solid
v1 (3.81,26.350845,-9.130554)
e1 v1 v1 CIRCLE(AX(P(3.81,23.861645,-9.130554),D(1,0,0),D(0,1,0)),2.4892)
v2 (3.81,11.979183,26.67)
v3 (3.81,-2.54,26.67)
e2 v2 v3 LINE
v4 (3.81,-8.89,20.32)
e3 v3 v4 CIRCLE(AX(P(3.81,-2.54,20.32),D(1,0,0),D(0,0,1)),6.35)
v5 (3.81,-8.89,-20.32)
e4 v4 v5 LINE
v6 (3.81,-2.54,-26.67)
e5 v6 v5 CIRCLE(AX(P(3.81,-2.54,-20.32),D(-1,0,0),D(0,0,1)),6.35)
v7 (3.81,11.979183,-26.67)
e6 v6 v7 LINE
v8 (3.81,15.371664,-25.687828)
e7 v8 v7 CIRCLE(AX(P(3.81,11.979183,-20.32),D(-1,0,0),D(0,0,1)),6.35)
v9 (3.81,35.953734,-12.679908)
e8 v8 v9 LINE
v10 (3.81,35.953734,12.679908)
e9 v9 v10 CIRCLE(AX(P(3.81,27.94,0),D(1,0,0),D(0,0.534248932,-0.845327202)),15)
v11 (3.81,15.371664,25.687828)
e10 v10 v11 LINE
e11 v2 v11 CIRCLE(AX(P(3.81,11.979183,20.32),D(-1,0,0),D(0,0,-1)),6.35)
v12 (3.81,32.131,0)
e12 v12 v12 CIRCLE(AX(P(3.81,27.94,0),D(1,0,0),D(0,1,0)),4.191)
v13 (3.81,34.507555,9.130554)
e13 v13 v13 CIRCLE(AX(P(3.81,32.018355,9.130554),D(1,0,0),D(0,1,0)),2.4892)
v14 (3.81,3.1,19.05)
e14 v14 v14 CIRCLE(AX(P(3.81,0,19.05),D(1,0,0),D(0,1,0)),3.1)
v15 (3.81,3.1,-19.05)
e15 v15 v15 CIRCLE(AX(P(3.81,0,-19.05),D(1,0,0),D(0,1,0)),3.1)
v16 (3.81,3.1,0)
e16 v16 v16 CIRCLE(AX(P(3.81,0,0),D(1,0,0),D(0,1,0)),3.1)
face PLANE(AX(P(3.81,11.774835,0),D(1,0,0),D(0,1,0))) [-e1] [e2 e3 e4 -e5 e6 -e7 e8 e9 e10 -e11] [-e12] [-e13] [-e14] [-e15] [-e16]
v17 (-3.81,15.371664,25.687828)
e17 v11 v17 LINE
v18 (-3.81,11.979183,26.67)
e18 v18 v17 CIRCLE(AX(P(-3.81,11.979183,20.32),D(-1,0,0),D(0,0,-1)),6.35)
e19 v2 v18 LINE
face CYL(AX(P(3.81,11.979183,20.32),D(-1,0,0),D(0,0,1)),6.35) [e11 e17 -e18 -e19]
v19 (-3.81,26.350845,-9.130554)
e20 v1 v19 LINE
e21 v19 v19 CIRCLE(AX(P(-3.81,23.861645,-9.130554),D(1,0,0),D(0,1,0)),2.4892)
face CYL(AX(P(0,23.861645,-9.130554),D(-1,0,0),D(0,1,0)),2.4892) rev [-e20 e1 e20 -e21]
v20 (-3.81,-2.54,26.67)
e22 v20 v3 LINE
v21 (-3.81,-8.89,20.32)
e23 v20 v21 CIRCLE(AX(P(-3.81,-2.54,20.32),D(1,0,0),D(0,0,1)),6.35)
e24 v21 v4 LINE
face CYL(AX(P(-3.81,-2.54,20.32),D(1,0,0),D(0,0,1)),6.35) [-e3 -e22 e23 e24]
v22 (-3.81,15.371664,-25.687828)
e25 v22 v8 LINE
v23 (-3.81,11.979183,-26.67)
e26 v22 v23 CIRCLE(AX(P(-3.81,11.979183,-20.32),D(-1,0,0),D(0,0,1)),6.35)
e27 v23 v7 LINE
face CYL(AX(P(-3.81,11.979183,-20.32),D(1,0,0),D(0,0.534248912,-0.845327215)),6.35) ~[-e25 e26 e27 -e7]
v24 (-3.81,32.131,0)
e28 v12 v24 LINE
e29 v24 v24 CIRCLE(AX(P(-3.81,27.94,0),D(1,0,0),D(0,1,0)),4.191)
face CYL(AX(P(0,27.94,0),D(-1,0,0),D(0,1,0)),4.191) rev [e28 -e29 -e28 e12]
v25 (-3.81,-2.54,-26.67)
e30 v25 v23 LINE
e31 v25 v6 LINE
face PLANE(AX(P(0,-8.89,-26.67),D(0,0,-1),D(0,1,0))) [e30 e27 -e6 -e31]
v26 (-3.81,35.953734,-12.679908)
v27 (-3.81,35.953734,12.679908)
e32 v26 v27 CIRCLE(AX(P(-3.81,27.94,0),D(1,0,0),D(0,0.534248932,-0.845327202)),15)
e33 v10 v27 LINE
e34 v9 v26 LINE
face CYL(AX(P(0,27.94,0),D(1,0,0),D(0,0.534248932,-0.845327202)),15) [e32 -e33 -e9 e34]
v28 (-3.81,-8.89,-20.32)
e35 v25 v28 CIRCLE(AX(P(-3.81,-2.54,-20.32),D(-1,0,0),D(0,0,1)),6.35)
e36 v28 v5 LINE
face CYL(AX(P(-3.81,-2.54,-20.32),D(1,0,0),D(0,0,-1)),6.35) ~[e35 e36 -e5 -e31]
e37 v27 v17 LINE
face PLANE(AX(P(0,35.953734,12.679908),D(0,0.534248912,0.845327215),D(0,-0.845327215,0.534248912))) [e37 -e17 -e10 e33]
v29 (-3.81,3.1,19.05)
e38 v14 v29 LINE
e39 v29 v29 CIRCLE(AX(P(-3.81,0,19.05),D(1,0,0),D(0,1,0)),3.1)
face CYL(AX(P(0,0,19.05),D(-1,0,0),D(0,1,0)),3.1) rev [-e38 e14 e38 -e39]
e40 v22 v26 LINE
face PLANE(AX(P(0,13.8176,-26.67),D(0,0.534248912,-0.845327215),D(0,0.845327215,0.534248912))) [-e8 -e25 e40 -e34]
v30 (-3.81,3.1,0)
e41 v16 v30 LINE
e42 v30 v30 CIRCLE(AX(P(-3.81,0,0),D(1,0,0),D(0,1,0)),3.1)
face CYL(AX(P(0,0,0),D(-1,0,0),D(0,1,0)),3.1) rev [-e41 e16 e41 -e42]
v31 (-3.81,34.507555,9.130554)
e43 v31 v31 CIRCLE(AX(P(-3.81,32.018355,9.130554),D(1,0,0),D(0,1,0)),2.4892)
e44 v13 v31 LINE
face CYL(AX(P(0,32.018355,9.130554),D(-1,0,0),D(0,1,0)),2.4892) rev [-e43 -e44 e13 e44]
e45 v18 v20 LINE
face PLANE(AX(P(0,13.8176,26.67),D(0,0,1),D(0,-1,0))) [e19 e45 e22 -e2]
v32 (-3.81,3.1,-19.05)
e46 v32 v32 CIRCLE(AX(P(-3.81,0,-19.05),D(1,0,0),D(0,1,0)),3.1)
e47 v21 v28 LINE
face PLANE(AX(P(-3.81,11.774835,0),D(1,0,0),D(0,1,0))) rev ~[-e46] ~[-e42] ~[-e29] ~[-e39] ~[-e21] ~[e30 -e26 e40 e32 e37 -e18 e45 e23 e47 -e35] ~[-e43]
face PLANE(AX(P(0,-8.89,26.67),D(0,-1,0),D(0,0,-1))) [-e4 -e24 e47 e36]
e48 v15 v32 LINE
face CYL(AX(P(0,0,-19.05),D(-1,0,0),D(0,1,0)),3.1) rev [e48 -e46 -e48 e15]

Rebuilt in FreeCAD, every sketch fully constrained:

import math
import FreeCAD as App
import Part
import Sketcher
Q = App.Units.Quantity


def edges_at(feature, points):
    """Names of the edges that pass closest to the given points."""
    edges = feature.Shape.Edges
    near = lambda p: min(range(len(edges)), key=lambda i: edges[i].distToShape(Part.Vertex(*p))[0])
    return sorted({f"Edge{near(p) + 1}" for p in points})

doc = App.newDocument("Part")
body = doc.addObject("PartDesign::Body", "Body")

# Sketch on YZ plane
sketch1 = body.newObject("Sketcher::SketchObject", "Sketch")
sketch1.AttachmentSupport = (doc.getObject("YZ_Plane"), [""])
sketch1.MapMode = "FlatFace"
sketch1.addGeometry(Part.LineSegment(App.Vector(13.8, 26.7, 0), App.Vector(-8.9, 26.7, 0)), False)
sketch1.addGeometry(Part.LineSegment(App.Vector(-8.9, 26.7, 0), App.Vector(-8.9, -26.7, 0)), False)
sketch1.addGeometry(Part.LineSegment(App.Vector(-8.9, -26.7, 0), App.Vector(13.8, -26.7, 0)), False)
sketch1.addGeometry(Part.LineSegment(App.Vector(13.8, -26.7, 0), App.Vector(36, -12.7, 0)), False)
sketch1.addGeometry(Part.ArcOfCircle(Part.Circle(App.Vector(27.9, 0, 0), App.Vector(0, 0, 1), 15), math.radians(-58), math.radians(58)), False)
sketch1.addGeometry(Part.LineSegment(App.Vector(36, 12.7, 0), App.Vector(13.8, 26.7, 0)), False)
sketch1.addGeometry(Part.Circle(App.Vector(0, -19.1, 0), App.Vector(0, 0, 1), 3.1), False)
sketch1.addGeometry(Part.Circle(App.Vector(23.9, -9.1, 0), App.Vector(0, 0, 1), 2.5), False)
sketch1.addGeometry(Part.Circle(App.Vector(0, 0, 0), App.Vector(0, 0, 1), 3.1), False)
sketch1.addGeometry(Part.Circle(App.Vector(0, 19.1, 0), App.Vector(0, 0, 1), 3.1), False)
sketch1.addGeometry(Part.Circle(App.Vector(27.9, 0, 0), App.Vector(0, 0, 1), 4.2), False)
sketch1.addGeometry(Part.Circle(App.Vector(32, 9.1, 0), App.Vector(0, 0, 1), 2.5), False)
sketch1.addConstraint(Sketcher.Constraint("Coincident", 0, 2, 1, 1))
sketch1.addConstraint(Sketcher.Constraint("Coincident", 1, 2, 2, 1))
sketch1.addConstraint(Sketcher.Constraint("Coincident", 2, 2, 3, 1))
sketch1.addConstraint(Sketcher.Constraint("Tangent", 3, 2, 4, 1))
sketch1.addConstraint(Sketcher.Constraint("Tangent", 4, 2, 5, 1))
sketch1.addConstraint(Sketcher.Constraint("Coincident", 5, 2, 0, 1))
sketch1.addConstraint(Sketcher.Constraint("Horizontal", 0))
sketch1.addConstraint(Sketcher.Constraint("Vertical", 1))
sketch1.addConstraint(Sketcher.Constraint("Horizontal", 2))
sketch1.addConstraint(Sketcher.Constraint("Coincident", 8, 3, -1, 1))
sketch1.addConstraint(Sketcher.Constraint("Coincident", 10, 3, 4, 3))
sketch1.addConstraint(Sketcher.Constraint("Equal", 6, 8))
sketch1.addConstraint(Sketcher.Constraint("Equal", 8, 9))
sketch1.addConstraint(Sketcher.Constraint("Equal", 7, 11))
sketch1.addConstraint(Sketcher.Constraint("Symmetric", 6, 3, 9, 3, -1, 1))
sketch1.addConstraint(Sketcher.Constraint("Symmetric", 3, 2, 4, 2, -1))
sketch1.addConstraint(Sketcher.Constraint("PointOnObject", 6, 3, -2))
sketch1.addConstraint(Sketcher.Constraint("Vertical", 2, 2, 5, 2))
sketch1.addConstraint(Sketcher.Constraint("Diameter", 10, Q("0.33 in")))
sketch1.addConstraint(Sketcher.Constraint("Diameter", 7, Q("0.196 in")))
sketch1.addConstraint(Sketcher.Constraint("DistanceY", 1, 2, 1, 1, Q("2.1 in")))
sketch1.addConstraint(Sketcher.Constraint("DistanceX", -1, 1, 4, 3, Q("1.1 in")))
sketch1.addConstraint(Sketcher.Constraint("DistanceY", 6, 3, 9, 3, Q("1.5 in")))
sketch1.addConstraint(Sketcher.Constraint("Diameter", 6, 6.2))
sketch1.addConstraint(Sketcher.Constraint("DistanceX", 0, 2, 0, 1, Q("0.894 in")))
sketch1.addConstraint(Sketcher.Constraint("DistanceX", 0, 2, -1, 1, Q("0.35 in")))
sketch1.addConstraint(Sketcher.Constraint("Radius", 4, 15.0))
sketch1.addConstraint(Sketcher.Constraint("DistanceX", 7, 3, 11, 3, 8.15671))
sketch1.addConstraint(Sketcher.Constraint("DistanceY", 7, 3, 11, 3, 18.261108))
sketch1.addConstraint(Sketcher.Constraint("DistanceX", 7, 3, 3, 2, 12.092089))
sketch1.addConstraint(Sketcher.Constraint("DistanceY", 7, 3, 4, 2, 21.810462))
pad1 = body.newObject("PartDesign::Pad", "Pad")
pad1.Profile = sketch1
pad1.Length = Q("0.3 in")
pad1.Midplane = True
doc.recompute()

fillet = body.newObject("PartDesign::Fillet", "Fillet")
fillet.Base = (pad1, edges_at(pad1, [
    (0, -8.89, 26.67),
    (0, 13.818, 26.67),
    (0, -8.89, -26.67),
    (0, 13.818, -26.67),
]))
fillet.Radius = Q("0.25 in")

doc.recompute()
